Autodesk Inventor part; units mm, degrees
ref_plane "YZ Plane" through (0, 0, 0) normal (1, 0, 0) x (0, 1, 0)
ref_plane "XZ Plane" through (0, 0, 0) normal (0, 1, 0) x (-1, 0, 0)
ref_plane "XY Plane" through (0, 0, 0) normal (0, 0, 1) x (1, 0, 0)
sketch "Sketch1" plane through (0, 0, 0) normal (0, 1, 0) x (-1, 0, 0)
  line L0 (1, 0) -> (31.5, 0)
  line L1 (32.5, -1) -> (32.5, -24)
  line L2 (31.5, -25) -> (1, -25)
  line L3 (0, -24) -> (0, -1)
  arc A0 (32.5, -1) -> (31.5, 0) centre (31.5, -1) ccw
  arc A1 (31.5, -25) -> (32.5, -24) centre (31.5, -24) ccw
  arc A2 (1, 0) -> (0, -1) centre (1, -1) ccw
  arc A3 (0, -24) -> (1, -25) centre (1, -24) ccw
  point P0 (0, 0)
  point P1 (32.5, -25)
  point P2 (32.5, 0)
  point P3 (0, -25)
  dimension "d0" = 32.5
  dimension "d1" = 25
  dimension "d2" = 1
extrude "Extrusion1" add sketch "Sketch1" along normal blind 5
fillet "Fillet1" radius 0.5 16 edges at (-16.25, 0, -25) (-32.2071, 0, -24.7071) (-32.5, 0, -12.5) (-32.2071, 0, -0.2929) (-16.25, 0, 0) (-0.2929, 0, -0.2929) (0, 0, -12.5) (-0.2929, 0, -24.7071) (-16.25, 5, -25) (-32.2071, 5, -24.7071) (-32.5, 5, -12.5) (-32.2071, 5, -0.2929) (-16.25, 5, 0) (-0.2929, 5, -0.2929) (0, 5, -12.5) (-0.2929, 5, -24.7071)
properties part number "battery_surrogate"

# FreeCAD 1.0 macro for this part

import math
import FreeCAD as App
import Part
import Sketcher
Q = App.Units.Quantity


def edges_at(feature, points):
    """Names of the edges that pass closest to the given points."""
    edges = feature.Shape.Edges
    near = lambda p: min(range(len(edges)), key=lambda i: edges[i].distToShape(Part.Vertex(*p))[0])
    return sorted({f"Edge{near(p) + 1}" for p in points})

doc = App.newDocument("Part")
body = doc.addObject("PartDesign::Body", "Body")

# Sketch on XZ plane
sketch1 = doc.addObject("Sketcher::SketchObject", "Sketch")
body.addObject(sketch1)
sketch1.AttachmentSupport = (doc.XZ_Plane, [""])
sketch1.MapMode = "FlatFace"
sketch1.addGeometry(Part.LineSegment(App.Vector(-31.5, 0, 0), App.Vector(-1, 0, 0)), False)
sketch1.addGeometry(Part.ArcOfCircle(Part.Circle(App.Vector(-1, -1, 0), App.Vector(0, 0, 1), 1), math.radians(0), math.radians(90)), False)
sketch1.addGeometry(Part.LineSegment(App.Vector(0, -1, 0), App.Vector(0, -24, 0)), False)
sketch1.addGeometry(Part.ArcOfCircle(Part.Circle(App.Vector(-1, -24, 0), App.Vector(0, 0, 1), 1), math.radians(-90), math.radians(0)), False)
sketch1.addGeometry(Part.LineSegment(App.Vector(-1, -25, 0), App.Vector(-31.5, -25, 0)), False)
sketch1.addGeometry(Part.ArcOfCircle(Part.Circle(App.Vector(-31.5, -24, 0), App.Vector(0, 0, 1), 1), math.radians(180), math.radians(270)), False)
sketch1.addGeometry(Part.LineSegment(App.Vector(-32.5, -24, 0), App.Vector(-32.5, -1, 0)), False)
sketch1.addGeometry(Part.ArcOfCircle(Part.Circle(App.Vector(-31.5, -1, 0), App.Vector(0, 0, 1), 1), math.radians(90), math.radians(180)), False)
sketch1.addConstraint(Sketcher.Constraint("Tangent", 0, 2, 1, 2))
sketch1.addConstraint(Sketcher.Constraint("Tangent", 1, 1, 2, 1))
sketch1.addConstraint(Sketcher.Constraint("Tangent", 2, 2, 3, 2))
sketch1.addConstraint(Sketcher.Constraint("Tangent", 3, 1, 4, 1))
sketch1.addConstraint(Sketcher.Constraint("Tangent", 4, 2, 5, 2))
sketch1.addConstraint(Sketcher.Constraint("Tangent", 5, 1, 6, 1))
sketch1.addConstraint(Sketcher.Constraint("Tangent", 6, 2, 7, 2))
sketch1.addConstraint(Sketcher.Constraint("Tangent", 7, 1, 0, 1))
sketch1.addConstraint(Sketcher.Constraint("Horizontal", 0))
sketch1.addConstraint(Sketcher.Constraint("Vertical", 2))
sketch1.addConstraint(Sketcher.Constraint("Horizontal", 4))
sketch1.addConstraint(Sketcher.Constraint("Vertical", 6))
sketch1.addConstraint(Sketcher.Constraint("Equal", 1, 3))
sketch1.addConstraint(Sketcher.Constraint("Equal", 3, 5))
sketch1.addConstraint(Sketcher.Constraint("Equal", 5, 7))
sketch1.addConstraint(Sketcher.Constraint("PointOnObject", 0, 2, -1))
sketch1.addConstraint(Sketcher.Constraint("PointOnObject", 1, 1, -2))
sketch1.addConstraint(Sketcher.Constraint("Radius", 1, Q("1 mm")))
sketch1.addConstraint(Sketcher.Constraint("DistanceY", 3, 1, -1, 1, Q("25 mm")))
sketch1.addConstraint(Sketcher.Constraint("DistanceX", 5, 1, -1, 1, Q("32.5 mm")))
pad1 = doc.addObject("PartDesign::Pad", "Pad")
body.addObject(pad1)
pad1.Profile = sketch1
pad1.Length = 5
pad1.Reversed = True
doc.recompute()

fillet = doc.addObject("PartDesign::Fillet", "Fillet")
body.addObject(fillet)
fillet.Base = (pad1, edges_at(pad1, [
    (-16.25, 0, -25),
    (-32.207, 0, -24.707),
    (-32.5, 0, -12.5),
    (-32.207, 0, -0.293),
    (-16.25, 0, 0),
    (-0.293, 0, -0.293),
    (0, 0, -12.5),
    (-0.293, 0, -24.707),
    (-16.25, 5, -25),
    (-32.207, 5, -24.707),
    (-32.5, 5, -12.5),
    (-32.207, 5, -0.293),
    (-16.25, 5, 0),
    (-0.293, 5, -0.293),
    (0, 5, -12.5),
    (-0.293, 5, -24.707),
]))
fillet.Radius = 0.5

doc.recompute()
